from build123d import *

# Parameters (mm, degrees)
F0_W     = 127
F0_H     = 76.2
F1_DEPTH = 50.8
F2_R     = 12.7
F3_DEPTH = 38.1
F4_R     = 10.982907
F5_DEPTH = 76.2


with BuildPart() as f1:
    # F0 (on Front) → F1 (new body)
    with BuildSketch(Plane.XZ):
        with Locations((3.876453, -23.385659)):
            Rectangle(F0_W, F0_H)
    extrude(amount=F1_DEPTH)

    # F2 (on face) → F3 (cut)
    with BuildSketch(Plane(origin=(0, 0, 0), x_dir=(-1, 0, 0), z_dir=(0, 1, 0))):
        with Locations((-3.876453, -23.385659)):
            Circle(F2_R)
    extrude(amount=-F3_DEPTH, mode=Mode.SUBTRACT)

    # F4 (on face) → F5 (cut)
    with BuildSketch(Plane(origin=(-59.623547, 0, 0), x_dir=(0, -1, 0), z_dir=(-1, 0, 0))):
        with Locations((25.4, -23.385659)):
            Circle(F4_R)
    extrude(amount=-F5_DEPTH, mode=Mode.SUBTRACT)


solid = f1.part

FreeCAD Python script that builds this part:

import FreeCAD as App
import Part
import Sketcher

V = App.Vector
Q = App.Units.Quantity

doc = App.newDocument("Part")
body = doc.addObject("PartDesign::Body", "Body")

sketch1 = doc.addObject("Sketcher::SketchObject", "Sketch")
body.addObject(sketch1)
sketch1.AttachmentSupport = (doc.XZ_Plane, [""])
sketch1.MapMode = "FlatFace"
sketch1.addGeometry([
    Part.LineSegment(V(-60, 15, 0), V(-60, -61, 0)),
    Part.LineSegment(V(-60, -61, 0), V(67, -61, 0)),
    Part.LineSegment(V(67, -61, 0), V(67, 15, 0)),
    Part.LineSegment(V(67, 15, 0), V(-60, 15, 0)),
], False)
sketch1.addConstraint([
    Sketcher.Constraint("Coincident", 0, 2, 1, 1),
    Sketcher.Constraint("Coincident", 1, 2, 2, 1),
    Sketcher.Constraint("Coincident", 2, 2, 3, 1),
    Sketcher.Constraint("Coincident", 3, 2, 0, 1),
    Sketcher.Constraint("Vertical", 0),
    Sketcher.Constraint("Horizontal", 1),
    Sketcher.Constraint("Vertical", 2),
    Sketcher.Constraint("Horizontal", 3),
    Sketcher.Constraint("DistanceX", 1, 1, 1, 2, Q("5 in")),
    Sketcher.Constraint("DistanceY", 0, 2, 0, 1, Q("3 in")),
    Sketcher.Constraint("DistanceY", 0, 2, -1, 1, 61.485659),
    Sketcher.Constraint("DistanceX", 0, 2, -1, 1, 59.623547),
])
pad1 = doc.addObject("PartDesign::Pad", "Pad")
body.addObject(pad1)
pad1.Profile = sketch1
pad1.Length = Q("2 in")

sketch2 = doc.addObject("Sketcher::SketchObject", "Sketch001")
body.addObject(sketch2)
sketch2.AttachmentSupport = (doc.XZ_Plane, [""])
sketch2.MapMode = "FlatFace"
sketch2.addGeometry(Part.Circle(V(4, -23, 0), V(0, 0, 1), 13), False)
sketch2.addConstraint([
    Sketcher.Constraint("Diameter", 0, Q("1 in")),
    Sketcher.Constraint("DistanceY", 0, 3, -1, 1, 23.385659),
    Sketcher.Constraint("DistanceX", -1, 1, 0, 3, 3.876453),
])
pocket1 = doc.addObject("PartDesign::Pocket", "Pocket")
body.addObject(pocket1)
pocket1.Profile = sketch2
pocket1.Length = Q("1.5 in")
pocket1.Reversed = True

sketch3 = doc.addObject("Sketcher::SketchObject", "Sketch002")
body.addObject(sketch3)
sketch3.AttachmentSupport = (doc.YZ_Plane, [""])
sketch3.MapMode = "FlatFace"
sketch3.AttachmentOffset = App.Placement(V(0, 0, -59.623547), App.Rotation())
sketch3.addGeometry(Part.Circle(V(-25, -23, 0), V(0, 0, 1), 11), False)
sketch3.addConstraint([
    Sketcher.Constraint("DistanceX", 0, 3, -1, 1, Q("1 in")),
    Sketcher.Constraint("Diameter", 0, 21.965814),
    Sketcher.Constraint("DistanceY", 0, 3, -1, 1, 23.385659),
])
pocket2 = doc.addObject("PartDesign::Pocket", "Pocket001")
body.addObject(pocket2)
pocket2.Profile = sketch3
pocket2.Length = Q("3 in")
pocket2.Reversed = True

doc.recompute()
